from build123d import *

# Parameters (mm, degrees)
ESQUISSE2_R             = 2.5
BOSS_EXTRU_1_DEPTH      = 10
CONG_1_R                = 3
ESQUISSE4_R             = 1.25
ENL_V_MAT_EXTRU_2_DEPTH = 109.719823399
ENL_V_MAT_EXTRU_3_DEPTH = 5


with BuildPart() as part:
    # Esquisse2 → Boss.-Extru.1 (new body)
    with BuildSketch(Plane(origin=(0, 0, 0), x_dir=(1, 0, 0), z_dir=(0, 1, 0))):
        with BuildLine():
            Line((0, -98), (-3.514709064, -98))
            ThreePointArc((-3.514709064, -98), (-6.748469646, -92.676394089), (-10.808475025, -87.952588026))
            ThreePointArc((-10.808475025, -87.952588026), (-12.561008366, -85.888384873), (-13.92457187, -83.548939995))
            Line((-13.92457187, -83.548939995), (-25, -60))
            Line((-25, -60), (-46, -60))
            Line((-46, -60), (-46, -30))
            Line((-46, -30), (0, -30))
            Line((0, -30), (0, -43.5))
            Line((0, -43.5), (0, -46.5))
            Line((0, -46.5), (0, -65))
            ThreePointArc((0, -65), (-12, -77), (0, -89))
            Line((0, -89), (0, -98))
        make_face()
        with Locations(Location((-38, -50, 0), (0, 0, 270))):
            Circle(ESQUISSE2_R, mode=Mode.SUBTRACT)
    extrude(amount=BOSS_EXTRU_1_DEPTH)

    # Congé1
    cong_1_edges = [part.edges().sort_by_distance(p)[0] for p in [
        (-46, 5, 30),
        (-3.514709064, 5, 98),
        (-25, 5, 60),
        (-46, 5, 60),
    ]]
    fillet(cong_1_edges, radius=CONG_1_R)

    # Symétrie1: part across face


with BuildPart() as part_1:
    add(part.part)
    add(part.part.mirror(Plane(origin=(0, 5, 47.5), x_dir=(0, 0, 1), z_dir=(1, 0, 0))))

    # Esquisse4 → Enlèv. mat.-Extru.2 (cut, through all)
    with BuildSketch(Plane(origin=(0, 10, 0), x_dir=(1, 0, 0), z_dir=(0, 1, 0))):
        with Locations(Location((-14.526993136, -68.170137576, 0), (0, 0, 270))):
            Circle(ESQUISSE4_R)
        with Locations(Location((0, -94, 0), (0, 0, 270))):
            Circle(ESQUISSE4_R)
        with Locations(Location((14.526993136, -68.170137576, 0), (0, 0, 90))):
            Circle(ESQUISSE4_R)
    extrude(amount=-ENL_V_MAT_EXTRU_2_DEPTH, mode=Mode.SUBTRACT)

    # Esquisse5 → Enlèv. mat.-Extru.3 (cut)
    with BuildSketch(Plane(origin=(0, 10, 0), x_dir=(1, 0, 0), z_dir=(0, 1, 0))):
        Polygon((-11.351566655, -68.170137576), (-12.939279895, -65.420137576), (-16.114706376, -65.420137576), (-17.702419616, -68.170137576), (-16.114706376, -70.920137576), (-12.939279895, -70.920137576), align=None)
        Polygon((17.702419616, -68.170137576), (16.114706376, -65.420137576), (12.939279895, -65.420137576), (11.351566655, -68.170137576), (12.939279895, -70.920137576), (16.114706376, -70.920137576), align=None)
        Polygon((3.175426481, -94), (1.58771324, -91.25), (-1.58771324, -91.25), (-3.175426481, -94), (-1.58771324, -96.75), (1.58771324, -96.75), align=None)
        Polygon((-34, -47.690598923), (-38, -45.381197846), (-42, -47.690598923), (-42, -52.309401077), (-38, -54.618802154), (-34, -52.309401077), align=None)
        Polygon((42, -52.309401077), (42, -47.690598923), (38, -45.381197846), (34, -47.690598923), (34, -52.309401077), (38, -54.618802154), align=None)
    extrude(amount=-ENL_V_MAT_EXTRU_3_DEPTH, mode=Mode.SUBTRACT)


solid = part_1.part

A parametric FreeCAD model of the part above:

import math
import FreeCAD as App
import Part
import Sketcher

V = App.Vector
Q = App.Units.Quantity


def edges_at(feature, points):
    """Names of the edges that pass closest to the given points."""
    edges = feature.Shape.Edges
    near = lambda p: min(range(len(edges)), key=lambda i: edges[i].distToShape(Part.Vertex(*p))[0])
    return sorted({f"Edge{near(p) + 1}" for p in points})

doc = App.newDocument("Part")
body = doc.addObject("PartDesign::Body", "Body")

sketch1 = body.newObject("Sketcher::SketchObject", "Sketch")
sketch1.AttachmentSupport = (doc.getObject("XZ_Plane"), [""])
sketch1.MapMode = "FlatFace"
sketch1.addGeometry([
    Part.LineSegment(V(-3.5, 98, 0), V(0, 98, 0)),
    Part.LineSegment(V(0, 98, 0), V(0, 89, 0)),
    Part.ArcOfCircle(Part.Circle(V(0, 77, 0), V(0, 0, 1), 12), math.radians(90), math.radians(270)),
    Part.LineSegment(V(0, 65, 0), V(0, 30, 0)),
    Part.LineSegment(V(0, 30, 0), V(-46, 30, 0)),
    Part.LineSegment(V(-46, 30, 0), V(-46, 60, 0)),
    Part.LineSegment(V(-46, 60, 0), V(-25, 60, 0)),
    Part.LineSegment(V(-25, 60, 0), V(-13.9, 83.5, 0)),
    Part.ArcOfCircle(Part.Circle(V(0, 77, 0), V(0, 0, 1), 15.4), math.radians(135), math.radians(155)),
    Part.ArcOfCircle(Part.Circle(V(-37.5, 115, 0), V(0, 0, 1), 38), math.radians(-45.38), math.radians(-26.57)),
    Part.Circle(V(-38, 50, 0), V(0, 0, 1), 2.5),
], False)
sketch1.addConstraint([
    Sketcher.Constraint("Coincident", 0, 2, 1, 1),
    Sketcher.Constraint("Coincident", 1, 2, 2, 1),
    Sketcher.Constraint("Coincident", 2, 2, 3, 1),
    Sketcher.Constraint("Coincident", 3, 2, 4, 1),
    Sketcher.Constraint("Coincident", 4, 2, 5, 1),
    Sketcher.Constraint("Coincident", 5, 2, 6, 1),
    Sketcher.Constraint("Coincident", 6, 2, 7, 1),
    Sketcher.Constraint("Tangent", 7, 2, 8, 2),
    Sketcher.Constraint("Tangent", 8, 1, 9, 1),
    Sketcher.Constraint("Coincident", 9, 2, 0, 1),
    Sketcher.Constraint("Horizontal", 0),
    Sketcher.Constraint("Vertical", 1),
    Sketcher.Constraint("Vertical", 3),
    Sketcher.Constraint("Horizontal", 4),
    Sketcher.Constraint("Vertical", 5),
    Sketcher.Constraint("Horizontal", 6),
    Sketcher.Constraint("Coincident", 8, 3, 2, 3),
    Sketcher.Constraint("PointOnObject", 2, 3, -2),
    Sketcher.Constraint("PointOnObject", 0, 2, -2),
    Sketcher.Constraint("PointOnObject", 2, 2, -2),
    Sketcher.Constraint("Diameter", 10, 5.0),
    Sketcher.Constraint("Radius", 2, 12.0),
    Sketcher.Constraint("Radius", 9, 38.0),
    Sketcher.Constraint("DistanceX", 4, 2, 4, 1, 46.0),
    Sketcher.Constraint("DistanceX", 6, 1, 6, 2, 21.0),
    Sketcher.Constraint("DistanceY", 1, 2, 1, 1, 9.0),
    Sketcher.Constraint("DistanceY", 3, 2, 3, 1, 35.0),
    Sketcher.Constraint("DistanceY", 5, 1, 5, 2, 30.0),
    Sketcher.Constraint("DistanceY", -1, 1, 2, 3, 77.0),
    Sketcher.Constraint("DistanceY", -1, 1, 9, 3, 115.0),
    Sketcher.Constraint("DistanceX", 10, 3, -1, 1, 38.0),
    Sketcher.Constraint("DistanceY", -1, 1, 10, 3, 50.0),
    Sketcher.Constraint("DistanceX", 9, 3, -1, 1, 37.5),
])
pad1 = body.newObject("PartDesign::Pad", "Pad")
pad1.Profile = sketch1
pad1.Length = 10
pad1.Reversed = True
doc.recompute()

fillet = body.newObject("PartDesign::Fillet", "Fillet")
fillet.Base = (pad1, edges_at(pad1, [
    (-46, 5, 30),
    (-3.515, 5, 98),
    (-25, 5, 60),
    (-46, 5, 60),
]))
fillet.Radius = 3
body2 = doc.addObject("PartDesign::Body", "Body001")
doc.recompute()

body2.BaseFeature = body
doc.recompute()

mirroring = doc.addObject("Part::Mirroring", "Mirroring")
mirroring.Source = body
mirroring.Base = V(0, 5, 47.5)
mirroring.Normal = V(1, 0, 0)
body3 = doc.addObject("PartDesign::Body", "Body002")
body3.BaseFeature = mirroring
boolean = body2.newObject("PartDesign::Boolean", "Boolean")
boolean.Type = "Fuse"
boolean.addObjects([body3])
doc.recompute()

sketch2 = body2.newObject("Sketcher::SketchObject", "Sketch001")
sketch2.AttachmentSupport = (doc.getObject("XZ_Plane001"), [""])
sketch2.MapMode = "FlatFace"
sketch2.AttachmentOffset = App.Placement(V(0, 0, -10), App.Rotation())
sketch2.addGeometry([
    Part.Circle(V(-14.5, 68.2, 0), V(0, 0, 1), 1.2),
    Part.Circle(V(0, 94, 0), V(0, 0, 1), 1.2),
    Part.Circle(V(14.5, 68.2, 0), V(0, 0, 1), 1.2),
], False)
sketch2.addConstraint([
    Sketcher.Constraint("Equal", 0, 1),
    Sketcher.Constraint("Equal", 1, 2),
    Sketcher.Constraint("Symmetric", 0, 3, 2, 3, -2),
    Sketcher.Constraint("PointOnObject", 1, 3, -2),
    Sketcher.Constraint("Diameter", 0, 2.5),
    Sketcher.Constraint("DistanceY", -1, 1, 1, 3, 94.0),
    Sketcher.Constraint("DistanceX", 0, 3, -1, 1, 14.526993),
    Sketcher.Constraint("DistanceY", -1, 1, 0, 3, 68.170138),
])
pocket1 = body2.newObject("PartDesign::Pocket", "Pocket")
pocket1.Profile = sketch2
pocket1.Type = "ThroughAll"
pocket1.Reversed = True

sketch3 = body2.newObject("Sketcher::SketchObject", "Sketch002")
sketch3.AttachmentSupport = (doc.getObject("XZ_Plane001"), [""])
sketch3.MapMode = "FlatFace"
sketch3.AttachmentOffset = App.Placement(V(0, 0, -10), App.Rotation())
sketch3.addGeometry([
    Part.LineSegment(V(-11.4, 68.2, 0), V(-12.9, 65.4, 0)),
    Part.LineSegment(V(-12.9, 65.4, 0), V(-16.1, 65.4, 0)),
    Part.LineSegment(V(-16.1, 65.4, 0), V(-17.7, 68.2, 0)),
    Part.LineSegment(V(-17.7, 68.2, 0), V(-16.1, 70.9, 0)),
    Part.LineSegment(V(-16.1, 70.9, 0), V(-12.9, 70.9, 0)),
    Part.LineSegment(V(-12.9, 70.9, 0), V(-11.4, 68.2, 0)),
    Part.LineSegment(V(17.7, 68.2, 0), V(16.1, 65.4, 0)),
    Part.LineSegment(V(16.1, 65.4, 0), V(12.9, 65.4, 0)),
    Part.LineSegment(V(12.9, 65.4, 0), V(11.4, 68.2, 0)),
    Part.LineSegment(V(11.4, 68.2, 0), V(12.9, 70.9, 0)),
    Part.LineSegment(V(12.9, 70.9, 0), V(16.1, 70.9, 0)),
    Part.LineSegment(V(16.1, 70.9, 0), V(17.7, 68.2, 0)),
    Part.LineSegment(V(3.2, 94, 0), V(1.6, 91.2, 0)),
    Part.LineSegment(V(1.6, 91.2, 0), V(-1.6, 91.2, 0)),
    Part.LineSegment(V(-1.6, 91.2, 0), V(-3.2, 94, 0)),
    Part.LineSegment(V(-3.2, 94, 0), V(-1.6, 96.8, 0)),
    Part.LineSegment(V(-1.6, 96.8, 0), V(1.6, 96.8, 0)),
    Part.LineSegment(V(1.6, 96.8, 0), V(3.2, 94, 0)),
    Part.LineSegment(V(-34, 47.7, 0), V(-38, 45.4, 0)),
    Part.LineSegment(V(-38, 45.4, 0), V(-42, 47.7, 0)),
    Part.LineSegment(V(-42, 47.7, 0), V(-42, 52.3, 0)),
    Part.LineSegment(V(-42, 52.3, 0), V(-38, 54.6, 0)),
    Part.LineSegment(V(-38, 54.6, 0), V(-34, 52.3, 0)),
    Part.LineSegment(V(-34, 52.3, 0), V(-34, 47.7, 0)),
    Part.LineSegment(V(42, 52.3, 0), V(42, 47.7, 0)),
    Part.LineSegment(V(42, 47.7, 0), V(38, 45.4, 0)),
    Part.LineSegment(V(38, 45.4, 0), V(34, 47.7, 0)),
    Part.LineSegment(V(34, 47.7, 0), V(34, 52.3, 0)),
    Part.LineSegment(V(34, 52.3, 0), V(38, 54.6, 0)),
    Part.LineSegment(V(38, 54.6, 0), V(42, 52.3, 0)),
], False)
sketch3.addConstraint([
    Sketcher.Constraint("Coincident", 0, 2, 1, 1),
    Sketcher.Constraint("Coincident", 1, 2, 2, 1),
    Sketcher.Constraint("Coincident", 2, 2, 3, 1),
    Sketcher.Constraint("Coincident", 3, 2, 4, 1),
    Sketcher.Constraint("Coincident", 4, 2, 5, 1),
    Sketcher.Constraint("Coincident", 5, 2, 0, 1),
    Sketcher.Constraint("Coincident", 6, 2, 7, 1),
    Sketcher.Constraint("Coincident", 7, 2, 8, 1),
    Sketcher.Constraint("Coincident", 8, 2, 9, 1),
    Sketcher.Constraint("Coincident", 9, 2, 10, 1),
    Sketcher.Constraint("Coincident", 10, 2, 11, 1),
    Sketcher.Constraint("Coincident", 11, 2, 6, 1),
    Sketcher.Constraint("Coincident", 12, 2, 13, 1),
    Sketcher.Constraint("Coincident", 13, 2, 14, 1),
    Sketcher.Constraint("Coincident", 14, 2, 15, 1),
    Sketcher.Constraint("Coincident", 15, 2, 16, 1),
    Sketcher.Constraint("Coincident", 16, 2, 17, 1),
    Sketcher.Constraint("Coincident", 17, 2, 12, 1),
    Sketcher.Constraint("Coincident", 18, 2, 19, 1),
    Sketcher.Constraint("Coincident", 19, 2, 20, 1),
    Sketcher.Constraint("Coincident", 20, 2, 21, 1),
    Sketcher.Constraint("Coincident", 21, 2, 22, 1),
    Sketcher.Constraint("Coincident", 22, 2, 23, 1),
    Sketcher.Constraint("Coincident", 23, 2, 18, 1),
    Sketcher.Constraint("Coincident", 24, 2, 25, 1),
    Sketcher.Constraint("Coincident", 25, 2, 26, 1),
    Sketcher.Constraint("Coincident", 26, 2, 27, 1),
    Sketcher.Constraint("Coincident", 27, 2, 28, 1),
    Sketcher.Constraint("Coincident", 28, 2, 29, 1),
    Sketcher.Constraint("Coincident", 29, 2, 24, 1),
    Sketcher.Constraint("Horizontal", 1),
    Sketcher.Constraint("Horizontal", 4),
    Sketcher.Constraint("Horizontal", 7),
    Sketcher.Constraint("Horizontal", 10),
    Sketcher.Constraint("Horizontal", 13),
    Sketcher.Constraint("Horizontal", 16),
    Sketcher.Constraint("Vertical", 20),
    Sketcher.Constraint("Vertical", 23),
    Sketcher.Constraint("Vertical", 24),
    Sketcher.Constraint("Vertical", 27),
    Sketcher.Constraint("Symmetric", 1, 2, 6, 2, -2),
    Sketcher.Constraint("Symmetric", 5, 2, 8, 2, -2),
    Sketcher.Constraint("Symmetric", 4, 2, 9, 2, -2),
    Sketcher.Constraint("Symmetric", 2, 2, 11, 2, -2),
    Sketcher.Constraint("Symmetric", 14, 2, 17, 2, -2),
    Sketcher.Constraint("Symmetric", 19, 2, 24, 2, -2),
    Sketcher.Constraint("Symmetric", 18, 2, 25, 2, -2),
    Sketcher.Constraint("Symmetric", 23, 2, 26, 2, -2),
    Sketcher.Constraint("Symmetric", 21, 2, 28, 2, -2),
    Sketcher.Constraint("Parallel", 0, 3),
    Sketcher.Constraint("Parallel", 2, 5),
    Sketcher.Constraint("Parallel", 3, 6),
    Sketcher.Constraint("Parallel", 5, 8),
    Sketcher.Constraint("Parallel", 8, 11),
    Sketcher.Constraint("Parallel", 9, 12),
    Sketcher.Constraint("Parallel", 11, 14),
    Sketcher.Constraint("Parallel", 12, 15),
    Sketcher.Constraint("Parallel", 14, 17),
    Sketcher.Constraint("Perpendicular", 17, 18),
    Sketcher.Constraint("Perpendicular", 15, 19),
    Sketcher.Constraint("Parallel", 18, 21),
    Sketcher.Constraint("Parallel", 19, 22),
    Sketcher.Constraint("Parallel", 25, 28),
    Sketcher.Constraint("Parallel", 26, 29),
    Sketcher.Constraint("Horizontal", 2, 2, 5, 2),
    Sketcher.Constraint("Horizontal", 20, 2, 22, 2),
    Sketcher.Constraint("Horizontal", 19, 2, 23, 2),
    Sketcher.Constraint("Vertical", 1, 2, 3, 2),
    Sketcher.Constraint("Vertical", 13, 2, 15, 2),
    Sketcher.Constraint("Equal", 10, 13),
    Sketcher.Constraint("Equal", 11, 12),
    Sketcher.Constraint("Angle", 0, Q("-120 deg")),
    Sketcher.Constraint("DistanceY", -1, 1, 14, 2, 94.0),
    Sketcher.Constraint("DistanceX", 18, 2, -1, 1, 38.0),
    Sketcher.Constraint("DistanceX", 19, 2, -1, 1, 42.0),
    Sketcher.Constraint("DistanceY", 1, 2, 3, 2, 5.5),
    Sketcher.Constraint("DistanceY", -1, 1, 19, 2, 47.690599),
    Sketcher.Constraint("DistanceY", -1, 1, 20, 2, 52.309401),
    Sketcher.Constraint("DistanceX", 1, 2, 1, 1, 3.175426),
    Sketcher.Constraint("DistanceX", 0, 2, -1, 1, 12.93928),
    Sketcher.Constraint("DistanceY", 18, 2, 1, 2, 20.03894),
])
pocket2 = body2.newObject("PartDesign::Pocket", "Pocket001")
pocket2.Profile = sketch3
pocket2.Length = 5
pocket2.Reversed = True
mirroring.Visibility = False

doc.recompute()
